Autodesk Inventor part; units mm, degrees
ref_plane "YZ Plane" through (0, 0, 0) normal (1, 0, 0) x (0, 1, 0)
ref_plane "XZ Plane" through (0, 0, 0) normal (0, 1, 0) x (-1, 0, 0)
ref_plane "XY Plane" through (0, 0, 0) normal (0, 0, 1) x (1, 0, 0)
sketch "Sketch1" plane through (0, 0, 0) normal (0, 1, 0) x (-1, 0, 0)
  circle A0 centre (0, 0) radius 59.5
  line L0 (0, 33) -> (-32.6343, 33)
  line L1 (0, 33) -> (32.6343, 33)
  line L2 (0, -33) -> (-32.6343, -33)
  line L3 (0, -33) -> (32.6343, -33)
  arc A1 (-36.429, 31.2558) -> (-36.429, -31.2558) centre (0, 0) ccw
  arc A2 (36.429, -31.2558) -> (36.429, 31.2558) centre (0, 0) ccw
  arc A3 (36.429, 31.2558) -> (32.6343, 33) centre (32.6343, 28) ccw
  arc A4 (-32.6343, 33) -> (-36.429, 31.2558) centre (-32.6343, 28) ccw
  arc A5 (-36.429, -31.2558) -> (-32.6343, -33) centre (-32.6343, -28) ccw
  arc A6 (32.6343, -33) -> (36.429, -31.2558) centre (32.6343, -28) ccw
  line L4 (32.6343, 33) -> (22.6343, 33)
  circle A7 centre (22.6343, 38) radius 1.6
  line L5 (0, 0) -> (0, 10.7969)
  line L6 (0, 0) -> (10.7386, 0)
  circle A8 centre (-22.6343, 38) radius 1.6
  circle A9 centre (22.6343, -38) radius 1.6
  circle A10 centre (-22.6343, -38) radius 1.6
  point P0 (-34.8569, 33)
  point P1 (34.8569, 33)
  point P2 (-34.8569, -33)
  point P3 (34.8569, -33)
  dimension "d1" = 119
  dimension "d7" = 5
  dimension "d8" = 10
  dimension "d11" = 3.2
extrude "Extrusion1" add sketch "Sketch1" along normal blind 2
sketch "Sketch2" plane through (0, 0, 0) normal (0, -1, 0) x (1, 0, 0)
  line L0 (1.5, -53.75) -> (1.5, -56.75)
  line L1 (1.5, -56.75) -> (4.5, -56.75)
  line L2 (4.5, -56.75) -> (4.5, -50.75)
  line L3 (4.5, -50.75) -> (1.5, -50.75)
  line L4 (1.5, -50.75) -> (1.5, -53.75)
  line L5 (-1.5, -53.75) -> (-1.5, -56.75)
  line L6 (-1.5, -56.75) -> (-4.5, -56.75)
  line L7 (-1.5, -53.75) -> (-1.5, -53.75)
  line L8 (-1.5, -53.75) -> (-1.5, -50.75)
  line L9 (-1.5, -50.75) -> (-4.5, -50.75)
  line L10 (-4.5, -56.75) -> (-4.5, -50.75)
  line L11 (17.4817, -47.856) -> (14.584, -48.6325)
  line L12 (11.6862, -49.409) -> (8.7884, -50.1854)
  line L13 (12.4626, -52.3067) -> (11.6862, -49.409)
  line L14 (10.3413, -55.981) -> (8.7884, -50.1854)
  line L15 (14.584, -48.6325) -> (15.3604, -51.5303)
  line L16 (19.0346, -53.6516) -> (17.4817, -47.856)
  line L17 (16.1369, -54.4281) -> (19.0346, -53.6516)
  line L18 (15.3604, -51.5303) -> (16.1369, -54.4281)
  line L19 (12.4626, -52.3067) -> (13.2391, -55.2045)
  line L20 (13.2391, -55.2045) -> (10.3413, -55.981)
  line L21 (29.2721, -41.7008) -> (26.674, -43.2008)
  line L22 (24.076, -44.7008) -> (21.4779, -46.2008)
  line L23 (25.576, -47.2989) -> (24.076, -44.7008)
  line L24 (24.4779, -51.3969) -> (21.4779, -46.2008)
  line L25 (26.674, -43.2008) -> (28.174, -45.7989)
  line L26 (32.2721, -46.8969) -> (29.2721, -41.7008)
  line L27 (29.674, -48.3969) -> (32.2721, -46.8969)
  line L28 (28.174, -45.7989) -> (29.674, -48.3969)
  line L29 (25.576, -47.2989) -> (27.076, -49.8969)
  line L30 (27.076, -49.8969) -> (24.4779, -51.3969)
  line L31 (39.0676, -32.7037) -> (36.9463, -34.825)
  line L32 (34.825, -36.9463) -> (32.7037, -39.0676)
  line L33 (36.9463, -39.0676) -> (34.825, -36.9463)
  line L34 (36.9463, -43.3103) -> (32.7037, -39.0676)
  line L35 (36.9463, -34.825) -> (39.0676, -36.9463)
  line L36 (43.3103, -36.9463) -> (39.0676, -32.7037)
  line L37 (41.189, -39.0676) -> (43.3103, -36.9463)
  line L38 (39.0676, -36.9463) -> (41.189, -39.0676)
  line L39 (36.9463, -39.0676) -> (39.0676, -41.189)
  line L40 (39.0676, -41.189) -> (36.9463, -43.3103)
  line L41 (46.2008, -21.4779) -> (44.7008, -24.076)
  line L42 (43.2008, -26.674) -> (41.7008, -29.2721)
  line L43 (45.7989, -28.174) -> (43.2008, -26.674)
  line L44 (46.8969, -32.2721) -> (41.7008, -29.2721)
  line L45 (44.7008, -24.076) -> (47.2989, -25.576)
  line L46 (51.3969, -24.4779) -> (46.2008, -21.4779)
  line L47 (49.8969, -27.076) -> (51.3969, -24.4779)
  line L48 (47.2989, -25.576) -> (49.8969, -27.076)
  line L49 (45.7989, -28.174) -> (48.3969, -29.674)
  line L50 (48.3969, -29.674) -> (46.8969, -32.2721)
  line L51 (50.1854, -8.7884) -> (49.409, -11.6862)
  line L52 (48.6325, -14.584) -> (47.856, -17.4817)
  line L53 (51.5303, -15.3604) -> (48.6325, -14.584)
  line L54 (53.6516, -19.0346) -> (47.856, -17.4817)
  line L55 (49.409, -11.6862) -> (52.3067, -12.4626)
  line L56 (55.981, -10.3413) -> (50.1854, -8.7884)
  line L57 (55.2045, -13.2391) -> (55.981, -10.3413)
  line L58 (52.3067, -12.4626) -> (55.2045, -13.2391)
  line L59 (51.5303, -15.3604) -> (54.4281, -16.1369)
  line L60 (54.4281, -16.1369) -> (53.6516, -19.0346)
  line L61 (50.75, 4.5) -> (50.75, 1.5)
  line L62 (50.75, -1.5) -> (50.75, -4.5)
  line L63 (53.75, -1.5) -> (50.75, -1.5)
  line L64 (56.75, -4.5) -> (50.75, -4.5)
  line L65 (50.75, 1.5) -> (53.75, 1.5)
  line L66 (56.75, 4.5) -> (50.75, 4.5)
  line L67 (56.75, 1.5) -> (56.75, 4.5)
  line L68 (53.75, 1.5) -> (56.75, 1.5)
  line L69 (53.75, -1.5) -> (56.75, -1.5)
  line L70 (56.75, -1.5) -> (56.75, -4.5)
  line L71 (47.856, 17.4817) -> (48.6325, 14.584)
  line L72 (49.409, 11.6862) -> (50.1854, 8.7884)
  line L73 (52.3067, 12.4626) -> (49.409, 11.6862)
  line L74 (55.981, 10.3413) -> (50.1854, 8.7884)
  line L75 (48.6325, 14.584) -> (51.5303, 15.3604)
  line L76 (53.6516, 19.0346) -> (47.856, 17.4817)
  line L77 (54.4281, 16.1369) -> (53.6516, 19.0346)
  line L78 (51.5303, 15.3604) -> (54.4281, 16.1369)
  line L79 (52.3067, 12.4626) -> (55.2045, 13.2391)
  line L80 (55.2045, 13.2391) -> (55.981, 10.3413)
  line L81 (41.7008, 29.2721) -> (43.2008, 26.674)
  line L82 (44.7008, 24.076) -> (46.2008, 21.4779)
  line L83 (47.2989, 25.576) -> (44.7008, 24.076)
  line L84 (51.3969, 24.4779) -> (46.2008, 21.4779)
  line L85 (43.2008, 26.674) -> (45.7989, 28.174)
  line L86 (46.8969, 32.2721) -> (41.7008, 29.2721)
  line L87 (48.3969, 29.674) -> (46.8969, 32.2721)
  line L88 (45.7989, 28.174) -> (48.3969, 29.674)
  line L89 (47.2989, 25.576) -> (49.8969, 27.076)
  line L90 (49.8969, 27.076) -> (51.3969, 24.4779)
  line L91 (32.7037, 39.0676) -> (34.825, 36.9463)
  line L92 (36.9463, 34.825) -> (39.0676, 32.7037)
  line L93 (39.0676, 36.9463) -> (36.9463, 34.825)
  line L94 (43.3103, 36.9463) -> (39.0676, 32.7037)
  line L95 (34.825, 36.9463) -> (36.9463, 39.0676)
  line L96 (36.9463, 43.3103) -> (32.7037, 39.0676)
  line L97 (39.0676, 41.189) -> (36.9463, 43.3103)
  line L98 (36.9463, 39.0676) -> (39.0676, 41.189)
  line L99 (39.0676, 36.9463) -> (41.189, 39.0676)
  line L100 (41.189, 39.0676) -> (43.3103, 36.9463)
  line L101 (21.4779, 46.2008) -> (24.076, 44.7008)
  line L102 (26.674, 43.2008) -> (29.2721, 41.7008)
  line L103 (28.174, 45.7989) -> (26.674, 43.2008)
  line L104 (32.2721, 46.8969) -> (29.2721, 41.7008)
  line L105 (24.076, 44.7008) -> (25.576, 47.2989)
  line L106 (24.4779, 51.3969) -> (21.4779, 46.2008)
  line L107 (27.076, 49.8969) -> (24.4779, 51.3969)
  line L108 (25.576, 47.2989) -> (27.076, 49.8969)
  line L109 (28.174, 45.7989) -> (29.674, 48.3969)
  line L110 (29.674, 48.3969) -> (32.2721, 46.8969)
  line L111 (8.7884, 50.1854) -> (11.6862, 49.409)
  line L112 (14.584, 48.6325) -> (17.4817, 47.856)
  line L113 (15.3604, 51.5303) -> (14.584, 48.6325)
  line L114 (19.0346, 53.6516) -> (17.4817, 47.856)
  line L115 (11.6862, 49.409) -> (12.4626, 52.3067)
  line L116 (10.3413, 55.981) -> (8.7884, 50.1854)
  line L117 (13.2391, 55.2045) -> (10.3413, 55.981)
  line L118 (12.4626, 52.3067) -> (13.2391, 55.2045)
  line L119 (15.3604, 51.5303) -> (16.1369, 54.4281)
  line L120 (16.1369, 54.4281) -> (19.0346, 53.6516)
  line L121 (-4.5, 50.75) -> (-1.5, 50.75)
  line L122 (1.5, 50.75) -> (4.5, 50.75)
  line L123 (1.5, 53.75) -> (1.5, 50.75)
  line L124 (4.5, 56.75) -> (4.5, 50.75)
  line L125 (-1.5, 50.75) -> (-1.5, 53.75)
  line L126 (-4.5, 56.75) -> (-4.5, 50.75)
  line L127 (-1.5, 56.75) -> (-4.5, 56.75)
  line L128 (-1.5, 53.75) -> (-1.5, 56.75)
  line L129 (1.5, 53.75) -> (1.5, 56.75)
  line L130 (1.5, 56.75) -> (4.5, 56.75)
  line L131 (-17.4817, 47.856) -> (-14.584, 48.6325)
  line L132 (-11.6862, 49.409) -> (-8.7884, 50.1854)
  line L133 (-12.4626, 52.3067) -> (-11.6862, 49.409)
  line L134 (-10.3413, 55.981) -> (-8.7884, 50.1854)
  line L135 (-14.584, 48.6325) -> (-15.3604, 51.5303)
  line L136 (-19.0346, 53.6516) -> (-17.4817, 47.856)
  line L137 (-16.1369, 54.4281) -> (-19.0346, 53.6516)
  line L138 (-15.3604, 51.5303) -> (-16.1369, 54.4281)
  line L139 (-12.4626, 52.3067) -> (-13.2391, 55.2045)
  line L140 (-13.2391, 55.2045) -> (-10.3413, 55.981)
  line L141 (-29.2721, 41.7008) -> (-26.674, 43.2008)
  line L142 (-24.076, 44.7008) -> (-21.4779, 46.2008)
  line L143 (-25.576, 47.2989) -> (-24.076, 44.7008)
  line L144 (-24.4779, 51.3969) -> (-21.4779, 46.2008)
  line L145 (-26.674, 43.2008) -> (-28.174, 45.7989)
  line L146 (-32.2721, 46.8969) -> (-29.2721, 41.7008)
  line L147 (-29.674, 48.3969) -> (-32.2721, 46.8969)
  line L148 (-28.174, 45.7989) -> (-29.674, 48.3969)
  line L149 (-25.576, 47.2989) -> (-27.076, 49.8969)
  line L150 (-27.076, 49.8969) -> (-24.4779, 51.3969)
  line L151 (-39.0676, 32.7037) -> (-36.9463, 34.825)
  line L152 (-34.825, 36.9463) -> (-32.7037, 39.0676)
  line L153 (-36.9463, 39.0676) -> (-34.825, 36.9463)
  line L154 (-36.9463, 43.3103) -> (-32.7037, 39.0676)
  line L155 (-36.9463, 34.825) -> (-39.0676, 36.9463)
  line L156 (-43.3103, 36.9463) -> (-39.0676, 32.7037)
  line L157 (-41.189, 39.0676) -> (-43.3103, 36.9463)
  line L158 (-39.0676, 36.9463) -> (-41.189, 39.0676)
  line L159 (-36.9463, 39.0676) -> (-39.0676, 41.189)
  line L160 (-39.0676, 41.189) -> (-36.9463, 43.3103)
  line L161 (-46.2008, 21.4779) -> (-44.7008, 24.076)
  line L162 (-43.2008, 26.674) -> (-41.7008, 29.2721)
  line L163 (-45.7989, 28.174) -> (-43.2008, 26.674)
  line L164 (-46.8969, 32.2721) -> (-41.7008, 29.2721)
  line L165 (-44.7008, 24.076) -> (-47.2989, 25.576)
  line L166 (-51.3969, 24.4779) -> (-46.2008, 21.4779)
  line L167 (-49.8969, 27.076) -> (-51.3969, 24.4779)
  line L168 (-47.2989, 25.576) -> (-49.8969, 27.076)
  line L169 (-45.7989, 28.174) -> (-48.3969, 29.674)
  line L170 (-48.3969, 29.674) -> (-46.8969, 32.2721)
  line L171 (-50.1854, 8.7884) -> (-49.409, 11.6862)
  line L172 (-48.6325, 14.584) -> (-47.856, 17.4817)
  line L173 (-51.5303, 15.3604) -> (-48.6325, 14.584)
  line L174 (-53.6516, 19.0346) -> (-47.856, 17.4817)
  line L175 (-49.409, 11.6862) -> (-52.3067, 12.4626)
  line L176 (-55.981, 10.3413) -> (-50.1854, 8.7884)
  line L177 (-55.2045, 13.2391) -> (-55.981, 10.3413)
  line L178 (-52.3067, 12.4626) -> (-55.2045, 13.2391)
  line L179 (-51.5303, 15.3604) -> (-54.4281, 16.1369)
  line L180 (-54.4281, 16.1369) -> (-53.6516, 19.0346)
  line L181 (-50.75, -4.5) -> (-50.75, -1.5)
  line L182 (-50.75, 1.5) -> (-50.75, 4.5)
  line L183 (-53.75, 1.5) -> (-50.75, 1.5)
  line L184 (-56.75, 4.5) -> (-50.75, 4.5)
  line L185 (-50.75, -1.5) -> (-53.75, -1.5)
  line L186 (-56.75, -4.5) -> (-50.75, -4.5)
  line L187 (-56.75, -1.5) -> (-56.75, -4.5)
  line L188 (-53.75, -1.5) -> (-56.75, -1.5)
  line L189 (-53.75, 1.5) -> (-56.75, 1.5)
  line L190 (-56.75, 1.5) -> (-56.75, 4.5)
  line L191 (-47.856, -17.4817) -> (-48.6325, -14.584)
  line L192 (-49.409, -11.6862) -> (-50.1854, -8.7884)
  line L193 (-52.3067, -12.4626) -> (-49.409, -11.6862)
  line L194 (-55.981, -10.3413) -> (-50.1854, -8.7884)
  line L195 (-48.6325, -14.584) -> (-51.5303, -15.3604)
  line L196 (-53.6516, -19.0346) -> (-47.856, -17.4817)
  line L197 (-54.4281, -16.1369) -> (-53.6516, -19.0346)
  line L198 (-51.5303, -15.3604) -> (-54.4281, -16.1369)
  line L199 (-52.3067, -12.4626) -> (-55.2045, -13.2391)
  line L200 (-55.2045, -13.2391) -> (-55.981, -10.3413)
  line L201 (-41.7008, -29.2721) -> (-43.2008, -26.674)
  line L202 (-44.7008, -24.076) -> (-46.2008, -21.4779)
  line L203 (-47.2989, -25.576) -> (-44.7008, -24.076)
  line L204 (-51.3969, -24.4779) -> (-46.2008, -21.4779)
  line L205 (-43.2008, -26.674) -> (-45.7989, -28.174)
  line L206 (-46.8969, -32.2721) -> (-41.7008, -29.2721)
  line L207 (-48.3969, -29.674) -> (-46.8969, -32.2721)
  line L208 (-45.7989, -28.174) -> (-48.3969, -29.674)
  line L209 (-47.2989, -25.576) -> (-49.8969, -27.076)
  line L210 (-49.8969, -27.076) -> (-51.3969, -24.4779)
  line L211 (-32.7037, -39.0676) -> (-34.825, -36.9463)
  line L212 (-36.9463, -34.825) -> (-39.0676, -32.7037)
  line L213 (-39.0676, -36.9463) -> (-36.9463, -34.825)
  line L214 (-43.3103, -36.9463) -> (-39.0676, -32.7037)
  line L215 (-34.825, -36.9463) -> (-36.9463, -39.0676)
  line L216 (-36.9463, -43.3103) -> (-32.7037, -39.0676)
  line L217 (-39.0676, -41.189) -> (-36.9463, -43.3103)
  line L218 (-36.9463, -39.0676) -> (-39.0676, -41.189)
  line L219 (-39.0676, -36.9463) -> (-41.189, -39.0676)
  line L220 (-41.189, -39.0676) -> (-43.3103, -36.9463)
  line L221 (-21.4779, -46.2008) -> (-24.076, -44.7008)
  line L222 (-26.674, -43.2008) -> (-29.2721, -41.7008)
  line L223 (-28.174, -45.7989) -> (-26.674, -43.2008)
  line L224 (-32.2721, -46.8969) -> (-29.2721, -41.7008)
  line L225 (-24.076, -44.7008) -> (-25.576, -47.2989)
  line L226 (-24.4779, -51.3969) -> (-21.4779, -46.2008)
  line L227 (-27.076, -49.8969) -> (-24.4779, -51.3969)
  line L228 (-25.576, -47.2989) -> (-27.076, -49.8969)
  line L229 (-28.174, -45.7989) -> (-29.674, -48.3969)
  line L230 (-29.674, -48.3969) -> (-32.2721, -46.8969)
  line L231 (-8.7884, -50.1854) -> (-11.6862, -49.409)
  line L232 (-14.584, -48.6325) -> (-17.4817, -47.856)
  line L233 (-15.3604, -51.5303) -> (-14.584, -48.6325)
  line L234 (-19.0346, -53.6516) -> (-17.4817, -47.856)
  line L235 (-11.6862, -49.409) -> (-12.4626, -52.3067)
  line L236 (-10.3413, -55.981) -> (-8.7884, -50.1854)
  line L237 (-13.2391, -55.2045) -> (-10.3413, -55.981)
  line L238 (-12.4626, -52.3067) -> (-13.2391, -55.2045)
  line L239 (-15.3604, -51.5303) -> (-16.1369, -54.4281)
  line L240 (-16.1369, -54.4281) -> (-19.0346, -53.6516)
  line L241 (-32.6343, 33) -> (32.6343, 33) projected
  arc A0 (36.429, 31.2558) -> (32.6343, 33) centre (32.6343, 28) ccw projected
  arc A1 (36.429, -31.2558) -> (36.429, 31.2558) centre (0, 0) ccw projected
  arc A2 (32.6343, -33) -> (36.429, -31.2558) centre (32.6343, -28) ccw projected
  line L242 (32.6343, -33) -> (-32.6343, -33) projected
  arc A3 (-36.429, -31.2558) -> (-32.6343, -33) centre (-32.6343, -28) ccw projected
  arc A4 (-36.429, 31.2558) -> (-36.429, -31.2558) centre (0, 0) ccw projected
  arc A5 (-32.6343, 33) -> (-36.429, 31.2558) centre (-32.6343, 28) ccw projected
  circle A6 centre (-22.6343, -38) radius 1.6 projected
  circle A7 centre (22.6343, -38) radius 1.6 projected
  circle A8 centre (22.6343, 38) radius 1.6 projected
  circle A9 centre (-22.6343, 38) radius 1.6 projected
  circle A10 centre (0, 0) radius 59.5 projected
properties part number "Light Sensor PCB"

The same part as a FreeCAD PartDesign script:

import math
import FreeCAD as App
import Part
import Sketcher
from FreeCAD import Vector
Q = App.Units.Quantity

doc = App.newDocument("Part")
params = doc.addObject("Spreadsheet::Sheet", "Params")
for row, (alias, value) in enumerate([
    ("sketch1_diameter", "119 mm"),
    ("sketch1_radius", "5 mm"),
    ("sketch1_diameter2", "3.2 mm"),
    ("sketch1_radius2", "48 mm"),
    ("pad1_length", "2 mm"),
], start=1):
    params.set(f"A{row}", alias)
    params.set(f"B{row}", "=" + value)
    params.setAlias(f"B{row}", alias)

body = doc.addObject("PartDesign::Body", "Body")

# Sketch on XZ plane
sketch1 = body.newObject("Sketcher::SketchObject", "Sketch")
sketch1.AttachmentSupport = (doc.getObject("XZ_Plane"), [""])
sketch1.MapMode = "FlatFace"
sketch1.addGeometry([
    Part.Circle(Vector(0, 0, 0), Vector(0, 0, 1), 59.5),  # 0
    Part.Circle(Vector(22.6, -38, 0), Vector(0, 0, 1), 1.6),  # 1
    Part.Circle(Vector(-22.6, -38, 0), Vector(0, 0, 1), 1.6),  # 2
    Part.LineSegment(Vector(32.6, 33, 0), Vector(-32.6, 33, 0)),  # 3
    Part.ArcOfCircle(Part.Circle(Vector(-32.6, 28, 0), Vector(0, 0, 1), 5), math.radians(90), math.radians(139)),  # 4
    Part.ArcOfCircle(Part.Circle(Vector(0, 0, 0), Vector(0, 0, 1), 48), math.radians(139), math.radians(221)),  # 5
    Part.ArcOfCircle(Part.Circle(Vector(-32.6, -28, 0), Vector(0, 0, 1), 5), math.radians(-139), math.radians(-90)),  # 6
    Part.LineSegment(Vector(-32.6, -33, 0), Vector(32.6, -33, 0)),  # 7
    Part.ArcOfCircle(Part.Circle(Vector(32.6, -28, 0), Vector(0, 0, 1), 5), math.radians(-90), math.radians(-41)),  # 8
    Part.ArcOfCircle(Part.Circle(Vector(0, 0, 0), Vector(0, 0, 1), 48), math.radians(-41), math.radians(41)),  # 9
    Part.ArcOfCircle(Part.Circle(Vector(32.6, 28, 0), Vector(0, 0, 1), 5), math.radians(41), math.radians(90)),  # 10
    Part.Circle(Vector(22.6, 38, 0), Vector(0, 0, 1), 1.6),  # 11
    Part.Circle(Vector(-22.6, 38, 0), Vector(0, 0, 1), 1.6),  # 12
], False)
sketch1.addConstraint([
    Sketcher.Constraint("Tangent", 3, 2, 4, 1),
    Sketcher.Constraint("Tangent", 4, 2, 5, 1),
    Sketcher.Constraint("Tangent", 5, 2, 6, 1),
    Sketcher.Constraint("Tangent", 6, 2, 7, 1),
    Sketcher.Constraint("Tangent", 7, 2, 8, 1),
    Sketcher.Constraint("Tangent", 8, 2, 9, 1),
    Sketcher.Constraint("Tangent", 9, 2, 10, 1),
    Sketcher.Constraint("Tangent", 10, 2, 3, 1),
    Sketcher.Constraint("Horizontal", 3),
    Sketcher.Constraint("Horizontal", 7),
    Sketcher.Constraint("Coincident", 0, 3, -1, 1),
    Sketcher.Constraint("Coincident", 5, 3, -1, 1),
    Sketcher.Constraint("Coincident", 9, 3, -1, 1),
    Sketcher.Constraint("Equal", 1, 2),
    Sketcher.Constraint("Equal", 4, 6),
    Sketcher.Constraint("Equal", 6, 8),
    Sketcher.Constraint("Equal", 5, 9),
    Sketcher.Constraint("Equal", 8, 10),
    Sketcher.Constraint("Equal", 2, 11),
    Sketcher.Constraint("Equal", 11, 12),
    Sketcher.Constraint("Symmetric", 2, 3, 11, 3, -1, 1),
    Sketcher.Constraint("Symmetric", 1, 3, 12, 3, -1, 1),
    Sketcher.Constraint("Symmetric", 1, 3, 2, 3, -2),
    Sketcher.Constraint("Vertical", 4, 3, 6, 3),
    Sketcher.Constraint("Diameter", 0, Q("119 mm")),
    Sketcher.Constraint("Radius", 4, Q("5 mm")),
    Sketcher.Constraint("Diameter", 1, Q("3.2 mm")),
    Sketcher.Constraint("Radius", 5, Q("48 mm")),
    Sketcher.Constraint("DistanceX", 4, 3, 2, 3, Q("10 mm")),
    Sketcher.Constraint("DistanceY", 2, 3, 6, 3, Q("10 mm")),
    Sketcher.Constraint("DistanceY", 1, 3, -1, 1, Q("38 mm")),
])
sketch1.setExpression("Constraints[24]", "Params.sketch1_diameter")
sketch1.setExpression("Constraints[25]", "Params.sketch1_radius")
sketch1.setExpression("Constraints[26]", "Params.sketch1_diameter2")
sketch1.setExpression("Constraints[27]", "Params.sketch1_radius2")
pad1 = body.newObject("PartDesign::Pad", "Pad")
pad1.Profile = sketch1
pad1.setExpression("Length", "Params.pad1_length")
pad1.Reversed = True

doc.recompute()
